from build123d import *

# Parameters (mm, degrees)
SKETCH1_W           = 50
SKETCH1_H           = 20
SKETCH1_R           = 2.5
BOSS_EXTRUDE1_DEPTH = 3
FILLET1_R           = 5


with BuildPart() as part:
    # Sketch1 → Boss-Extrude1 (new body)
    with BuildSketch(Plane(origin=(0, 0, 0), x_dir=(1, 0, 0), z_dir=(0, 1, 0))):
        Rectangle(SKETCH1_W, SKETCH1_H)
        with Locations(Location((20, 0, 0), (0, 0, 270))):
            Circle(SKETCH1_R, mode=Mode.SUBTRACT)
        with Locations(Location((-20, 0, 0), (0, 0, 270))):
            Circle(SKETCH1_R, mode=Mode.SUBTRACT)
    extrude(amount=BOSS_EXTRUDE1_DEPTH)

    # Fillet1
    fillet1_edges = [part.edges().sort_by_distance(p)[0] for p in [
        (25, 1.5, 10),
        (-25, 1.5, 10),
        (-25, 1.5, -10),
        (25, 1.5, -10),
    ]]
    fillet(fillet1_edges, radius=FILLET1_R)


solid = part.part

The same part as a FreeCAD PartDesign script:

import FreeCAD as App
import Part
import Sketcher


def edges_at(feature, points):
    """Names of the edges that pass closest to the given points."""
    edges = feature.Shape.Edges
    near = lambda p: min(range(len(edges)), key=lambda i: edges[i].distToShape(Part.Vertex(*p))[0])
    return sorted({f"Edge{near(p) + 1}" for p in points})


def add_polygon(sketch, points):
    """Adds a closed chain of lines whose ends are joined by coincident constraints."""
    first, n = sketch.GeometryCount, len(points)
    for a, b in zip(points, points[1:] + points[:1]):
        sketch.addGeometry(Part.LineSegment(App.Vector(*a, 0), App.Vector(*b, 0)), False)
    for i in range(n):
        sketch.addConstraint(Sketcher.Constraint("Coincident", first + i, 2, first + (i + 1) % n, 1))

doc = App.newDocument("Part")
body = doc.addObject("PartDesign::Body", "Body")

# Sketch on XZ plane
sketch1 = doc.addObject("Sketcher::SketchObject", "Sketch")
body.addObject(sketch1)
sketch1.AttachmentSupport = (doc.XZ_Plane, [""])
sketch1.MapMode = "FlatFace"
add_polygon(sketch1, [(-25, -10), (-25, 10), (25, 10), (25, -10)])  # lines 0-3
sketch1.addGeometry(Part.Circle(App.Vector(-20, 0, 0), App.Vector(0, 0, 1), 2.5), False)  # 4
sketch1.addGeometry(Part.Circle(App.Vector(20, 0, 0), App.Vector(0, 0, 1), 2.5), False)  # 5
sketch1.addConstraint(Sketcher.Constraint("Vertical", 0))
sketch1.addConstraint(Sketcher.Constraint("Horizontal", 1))
sketch1.addConstraint(Sketcher.Constraint("Vertical", 2))
sketch1.addConstraint(Sketcher.Constraint("Horizontal", 3))
sketch1.addConstraint(Sketcher.Constraint("Equal", 4, 5))
sketch1.addConstraint(Sketcher.Constraint("Symmetric", 4, 3, 5, 3, -1, 1))
sketch1.addConstraint(Sketcher.Constraint("Symmetric", 0, 2, 2, 2, -1, 1))
sketch1.addConstraint(Sketcher.Constraint("PointOnObject", 4, 3, -1))
sketch1.addConstraint(Sketcher.Constraint("Diameter", 4, 5.0))
sketch1.addConstraint(Sketcher.Constraint("DistanceX", 1, 1, 1, 2, 50.0))
sketch1.addConstraint(Sketcher.Constraint("DistanceY", 0, 1, 0, 2, 20.0))
sketch1.addConstraint(Sketcher.Constraint("DistanceX", 4, 3, -1, 1, 20.0))
pad1 = doc.addObject("PartDesign::Pad", "Pad")
body.addObject(pad1)
pad1.Profile = sketch1
pad1.Length = 3
pad1.Reversed = True
doc.recompute()

fillet = doc.addObject("PartDesign::Fillet", "Fillet")
body.addObject(fillet)
fillet.Base = (pad1, edges_at(pad1, [
    (25, 1.5, 10),
    (-25, 1.5, 10),
    (-25, 1.5, -10),
    (25, 1.5, -10),
]))
fillet.Radius = 5

doc.recompute()
